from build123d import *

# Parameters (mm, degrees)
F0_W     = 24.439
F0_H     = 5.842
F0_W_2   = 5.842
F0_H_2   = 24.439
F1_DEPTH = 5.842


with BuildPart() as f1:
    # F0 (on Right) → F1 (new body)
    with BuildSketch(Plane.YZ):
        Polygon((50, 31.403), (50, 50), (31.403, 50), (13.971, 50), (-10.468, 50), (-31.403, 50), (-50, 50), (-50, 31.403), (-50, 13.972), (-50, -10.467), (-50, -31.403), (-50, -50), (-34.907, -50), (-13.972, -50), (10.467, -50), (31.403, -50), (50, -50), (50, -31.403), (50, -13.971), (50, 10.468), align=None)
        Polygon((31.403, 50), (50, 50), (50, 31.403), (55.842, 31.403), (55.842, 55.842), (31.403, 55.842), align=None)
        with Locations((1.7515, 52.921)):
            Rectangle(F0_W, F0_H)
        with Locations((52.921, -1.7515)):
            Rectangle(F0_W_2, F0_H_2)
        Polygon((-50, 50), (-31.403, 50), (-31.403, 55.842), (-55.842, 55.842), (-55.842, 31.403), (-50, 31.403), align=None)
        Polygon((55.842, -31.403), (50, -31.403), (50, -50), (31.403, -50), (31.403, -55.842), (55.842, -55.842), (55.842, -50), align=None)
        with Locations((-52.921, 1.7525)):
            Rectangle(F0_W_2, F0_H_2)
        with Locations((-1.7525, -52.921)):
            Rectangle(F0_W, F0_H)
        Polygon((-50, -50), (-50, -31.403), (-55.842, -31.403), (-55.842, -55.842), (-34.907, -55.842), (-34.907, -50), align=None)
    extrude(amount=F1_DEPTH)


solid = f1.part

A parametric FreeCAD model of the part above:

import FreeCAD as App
import Part
import Sketcher
from FreeCAD import Vector
Q = App.Units.Quantity

doc = App.newDocument("Part")
params = doc.addObject("Spreadsheet::Sheet", "Params")
for row, (alias, value) in enumerate([
    ("sketch1_width", "0.23 in"),
    ("pad1_length", "0.23 in"),
], start=1):
    params.set(f"A{row}", alias)
    params.set(f"B{row}", "=" + value)
    params.setAlias(f"B{row}", alias)

body = doc.addObject("PartDesign::Body", "Body")

# Sketch on YZ plane
sketch1 = body.newObject("Sketcher::SketchObject", "Sketch")
sketch1.AttachmentSupport = (doc.getObject("YZ_Plane"), [""])
sketch1.MapMode = "FlatFace"
sketch1.addGeometry(Part.LineSegment(Vector(31.403, 50, 0), Vector(13.971, 50, 0)), False)
sketch1.addGeometry(Part.LineSegment(Vector(13.971, 50, 0), Vector(13.971, 55.842, 0)), False)
sketch1.addGeometry(Part.LineSegment(Vector(13.971, 55.842, 0), Vector(-10.468, 55.842, 0)), False)
sketch1.addGeometry(Part.LineSegment(Vector(-10.468, 55.842, 0), Vector(-10.468, 50, 0)), False)
sketch1.addGeometry(Part.LineSegment(Vector(-10.468, 50, 0), Vector(-31.403, 50, 0)), False)
sketch1.addGeometry(Part.LineSegment(Vector(-31.403, 50, 0), Vector(-31.403, 55.842, 0)), False)
sketch1.addGeometry(Part.LineSegment(Vector(-31.403, 55.842, 0), Vector(-55.842, 55.842, 0)), False)
sketch1.addGeometry(Part.LineSegment(Vector(-55.842, 55.842, 0), Vector(-55.842, 31.403, 0)), False)
sketch1.addGeometry(Part.LineSegment(Vector(-55.842, 31.403, 0), Vector(-50, 31.403, 0)), False)
sketch1.addGeometry(Part.LineSegment(Vector(-50, 31.403, 0), Vector(-50, 13.972, 0)), False)
sketch1.addGeometry(Part.LineSegment(Vector(-50, 13.972, 0), Vector(-55.842, 13.972, 0)), False)
sketch1.addGeometry(Part.LineSegment(Vector(-55.842, 13.972, 0), Vector(-55.842, -10.467, 0)), False)
sketch1.addGeometry(Part.LineSegment(Vector(-55.842, -10.467, 0), Vector(-50, -10.467, 0)), False)
sketch1.addGeometry(Part.LineSegment(Vector(-50, -10.467, 0), Vector(-50, -31.403, 0)), False)
sketch1.addGeometry(Part.LineSegment(Vector(-50, -31.403, 0), Vector(-55.842, -31.403, 0)), False)
sketch1.addGeometry(Part.LineSegment(Vector(-55.842, -31.403, 0), Vector(-55.842, -55.842, 0)), False)
sketch1.addGeometry(Part.LineSegment(Vector(-55.842, -55.842, 0), Vector(-34.907, -55.842, 0)), False)
sketch1.addGeometry(Part.LineSegment(Vector(-34.907, -55.842, 0), Vector(-34.907, -50, 0)), False)
sketch1.addGeometry(Part.LineSegment(Vector(-34.907, -50, 0), Vector(-13.972, -50, 0)), False)
sketch1.addGeometry(Part.LineSegment(Vector(-13.972, -50, 0), Vector(-13.972, -55.842, 0)), False)
sketch1.addGeometry(Part.LineSegment(Vector(-13.972, -55.842, 0), Vector(10.467, -55.842, 0)), False)
sketch1.addGeometry(Part.LineSegment(Vector(10.467, -55.842, 0), Vector(10.467, -50, 0)), False)
sketch1.addGeometry(Part.LineSegment(Vector(10.467, -50, 0), Vector(31.403, -50, 0)), False)
sketch1.addGeometry(Part.LineSegment(Vector(31.403, -50, 0), Vector(31.403, -55.842, 0)), False)
sketch1.addGeometry(Part.LineSegment(Vector(31.403, -55.842, 0), Vector(55.842, -55.842, 0)), False)
sketch1.addGeometry(Part.LineSegment(Vector(55.842, -55.842, 0), Vector(55.842, -31.403, 0)), False)
sketch1.addGeometry(Part.LineSegment(Vector(55.842, -31.403, 0), Vector(50, -31.403, 0)), False)
sketch1.addGeometry(Part.LineSegment(Vector(50, -31.403, 0), Vector(50, -13.971, 0)), False)
sketch1.addGeometry(Part.LineSegment(Vector(50, -13.971, 0), Vector(55.842, -13.971, 0)), False)
sketch1.addGeometry(Part.LineSegment(Vector(55.842, -13.971, 0), Vector(55.842, 10.468, 0)), False)
sketch1.addGeometry(Part.LineSegment(Vector(55.842, 10.468, 0), Vector(50, 10.468, 0)), False)
sketch1.addGeometry(Part.LineSegment(Vector(50, 10.468, 0), Vector(50, 31.403, 0)), False)
sketch1.addGeometry(Part.LineSegment(Vector(50, 31.403, 0), Vector(55.842, 31.403, 0)), False)
sketch1.addGeometry(Part.LineSegment(Vector(55.842, 31.403, 0), Vector(55.842, 55.842, 0)), False)
sketch1.addGeometry(Part.LineSegment(Vector(55.842, 55.842, 0), Vector(31.403, 55.842, 0)), False)
sketch1.addGeometry(Part.LineSegment(Vector(31.403, 55.842, 0), Vector(31.403, 50, 0)), False)
sketch1.addConstraint(Sketcher.Constraint("Coincident", 0, 2, 1, 1))
sketch1.addConstraint(Sketcher.Constraint("Coincident", 1, 2, 2, 1))
sketch1.addConstraint(Sketcher.Constraint("Coincident", 2, 2, 3, 1))
sketch1.addConstraint(Sketcher.Constraint("Coincident", 3, 2, 4, 1))
sketch1.addConstraint(Sketcher.Constraint("Coincident", 4, 2, 5, 1))
sketch1.addConstraint(Sketcher.Constraint("Coincident", 5, 2, 6, 1))
sketch1.addConstraint(Sketcher.Constraint("Coincident", 6, 2, 7, 1))
sketch1.addConstraint(Sketcher.Constraint("Coincident", 7, 2, 8, 1))
sketch1.addConstraint(Sketcher.Constraint("Coincident", 8, 2, 9, 1))
sketch1.addConstraint(Sketcher.Constraint("Coincident", 9, 2, 10, 1))
sketch1.addConstraint(Sketcher.Constraint("Coincident", 10, 2, 11, 1))
sketch1.addConstraint(Sketcher.Constraint("Coincident", 11, 2, 12, 1))
sketch1.addConstraint(Sketcher.Constraint("Coincident", 12, 2, 13, 1))
sketch1.addConstraint(Sketcher.Constraint("Coincident", 13, 2, 14, 1))
sketch1.addConstraint(Sketcher.Constraint("Coincident", 14, 2, 15, 1))
sketch1.addConstraint(Sketcher.Constraint("Coincident", 15, 2, 16, 1))
sketch1.addConstraint(Sketcher.Constraint("Coincident", 16, 2, 17, 1))
sketch1.addConstraint(Sketcher.Constraint("Coincident", 17, 2, 18, 1))
sketch1.addConstraint(Sketcher.Constraint("Coincident", 18, 2, 19, 1))
sketch1.addConstraint(Sketcher.Constraint("Coincident", 19, 2, 20, 1))
sketch1.addConstraint(Sketcher.Constraint("Coincident", 20, 2, 21, 1))
sketch1.addConstraint(Sketcher.Constraint("Coincident", 21, 2, 22, 1))
sketch1.addConstraint(Sketcher.Constraint("Coincident", 22, 2, 23, 1))
sketch1.addConstraint(Sketcher.Constraint("Coincident", 23, 2, 24, 1))
sketch1.addConstraint(Sketcher.Constraint("Coincident", 24, 2, 25, 1))
sketch1.addConstraint(Sketcher.Constraint("Coincident", 25, 2, 26, 1))
sketch1.addConstraint(Sketcher.Constraint("Coincident", 26, 2, 27, 1))
sketch1.addConstraint(Sketcher.Constraint("Coincident", 27, 2, 28, 1))
sketch1.addConstraint(Sketcher.Constraint("Coincident", 28, 2, 29, 1))
sketch1.addConstraint(Sketcher.Constraint("Coincident", 29, 2, 30, 1))
sketch1.addConstraint(Sketcher.Constraint("Coincident", 30, 2, 31, 1))
sketch1.addConstraint(Sketcher.Constraint("Coincident", 31, 2, 32, 1))
sketch1.addConstraint(Sketcher.Constraint("Coincident", 32, 2, 33, 1))
sketch1.addConstraint(Sketcher.Constraint("Coincident", 33, 2, 34, 1))
sketch1.addConstraint(Sketcher.Constraint("Coincident", 34, 2, 35, 1))
sketch1.addConstraint(Sketcher.Constraint("Coincident", 35, 2, 0, 1))
sketch1.addConstraint(Sketcher.Constraint("Horizontal", 0))
sketch1.addConstraint(Sketcher.Constraint("Vertical", 1))
sketch1.addConstraint(Sketcher.Constraint("Horizontal", 2))
sketch1.addConstraint(Sketcher.Constraint("Vertical", 3))
sketch1.addConstraint(Sketcher.Constraint("Horizontal", 4))
sketch1.addConstraint(Sketcher.Constraint("Vertical", 5))
sketch1.addConstraint(Sketcher.Constraint("Horizontal", 6))
sketch1.addConstraint(Sketcher.Constraint("Vertical", 7))
sketch1.addConstraint(Sketcher.Constraint("Horizontal", 8))
sketch1.addConstraint(Sketcher.Constraint("Vertical", 9))
sketch1.addConstraint(Sketcher.Constraint("Horizontal", 10))
sketch1.addConstraint(Sketcher.Constraint("Vertical", 11))
sketch1.addConstraint(Sketcher.Constraint("Horizontal", 12))
sketch1.addConstraint(Sketcher.Constraint("Vertical", 13))
sketch1.addConstraint(Sketcher.Constraint("Horizontal", 14))
sketch1.addConstraint(Sketcher.Constraint("Vertical", 15))
sketch1.addConstraint(Sketcher.Constraint("Horizontal", 16))
sketch1.addConstraint(Sketcher.Constraint("Vertical", 17))
sketch1.addConstraint(Sketcher.Constraint("Horizontal", 18))
sketch1.addConstraint(Sketcher.Constraint("Vertical", 19))
sketch1.addConstraint(Sketcher.Constraint("Horizontal", 20))
sketch1.addConstraint(Sketcher.Constraint("Vertical", 21))
sketch1.addConstraint(Sketcher.Constraint("Horizontal", 22))
sketch1.addConstraint(Sketcher.Constraint("Vertical", 23))
sketch1.addConstraint(Sketcher.Constraint("Horizontal", 24))
sketch1.addConstraint(Sketcher.Constraint("Vertical", 25))
sketch1.addConstraint(Sketcher.Constraint("Horizontal", 26))
sketch1.addConstraint(Sketcher.Constraint("Vertical", 27))
sketch1.addConstraint(Sketcher.Constraint("Horizontal", 28))
sketch1.addConstraint(Sketcher.Constraint("Vertical", 29))
sketch1.addConstraint(Sketcher.Constraint("Horizontal", 30))
sketch1.addConstraint(Sketcher.Constraint("Vertical", 31))
sketch1.addConstraint(Sketcher.Constraint("Horizontal", 32))
sketch1.addConstraint(Sketcher.Constraint("Vertical", 33))
sketch1.addConstraint(Sketcher.Constraint("Horizontal", 34))
sketch1.addConstraint(Sketcher.Constraint("Vertical", 35))
sketch1.addConstraint(Sketcher.Constraint("Symmetric", 4, 2, 22, 2, -1, 1))
sketch1.addConstraint(Sketcher.Constraint("Symmetric", 6, 2, 24, 2, -1, 1))
sketch1.addConstraint(Sketcher.Constraint("Symmetric", 8, 2, 26, 2, -1, 1))
sketch1.addConstraint(Sketcher.Constraint("Symmetric", 13, 2, 31, 2, -1, 1))
sketch1.addConstraint(Sketcher.Constraint("Symmetric", 15, 2, 33, 2, -1, 1))
sketch1.addConstraint(Sketcher.Constraint("Symmetric", 15, 2, 24, 2, -2))
sketch1.addConstraint(Sketcher.Constraint("Symmetric", 13, 2, 26, 2, -2))
sketch1.addConstraint(Sketcher.Constraint("Symmetric", 4, 2, 35, 2, -2))
sketch1.addConstraint(Sketcher.Constraint("Horizontal", 2, 2, 5, 2))
sketch1.addConstraint(Sketcher.Constraint("Horizontal", 16, 2, 19, 2))
sketch1.addConstraint(Sketcher.Constraint("Horizontal", 18, 2, 21, 2))
sketch1.addConstraint(Sketcher.Constraint("Vertical", 7, 2, 10, 2))
sketch1.addConstraint(Sketcher.Constraint("Vertical", 25, 2, 28, 2))
sketch1.addConstraint(Sketcher.Constraint("Equal", 2, 6))
sketch1.addConstraint(Sketcher.Constraint("Equal", 4, 16))
sketch1.addConstraint(Sketcher.Constraint("Equal", 16, 18))
sketch1.addConstraint(Sketcher.Constraint("Equal", 6, 20))
sketch1.addConstraint(Sketcher.Constraint("Equal", 32, 1))
sketch1.addConstraint(Sketcher.Constraint("Equal", 34, 7))
sketch1.addConstraint(Sketcher.Constraint("Equal", 7, 11))
sketch1.addConstraint(Sketcher.Constraint("Equal", 22, 13))
sketch1.addConstraint(Sketcher.Constraint("Equal", 0, 27))
sketch1.addConstraint(Sketcher.Constraint("Equal", 25, 29))
sketch1.addConstraint(Sketcher.Constraint("Equal", 18, 31))
sketch1.addConstraint(Sketcher.Constraint("DistanceX", 8, 1, 8, 2, Q("0.23 in")))
sketch1.addConstraint(Sketcher.Constraint("DistanceX", 0, 2, 0, 1, 17.432))
sketch1.addConstraint(Sketcher.Constraint("DistanceX", 2, 2, 2, 1, 24.439))
sketch1.addConstraint(Sketcher.Constraint("DistanceX", 4, 2, 4, 1, 20.935))
sketch1.setExpression("Constraints[96]", "Params.sketch1_width")
pad1 = body.newObject("PartDesign::Pad", "Pad")
pad1.Profile = sketch1
pad1.setExpression("Length", "Params.pad1_length")

doc.recompute()
